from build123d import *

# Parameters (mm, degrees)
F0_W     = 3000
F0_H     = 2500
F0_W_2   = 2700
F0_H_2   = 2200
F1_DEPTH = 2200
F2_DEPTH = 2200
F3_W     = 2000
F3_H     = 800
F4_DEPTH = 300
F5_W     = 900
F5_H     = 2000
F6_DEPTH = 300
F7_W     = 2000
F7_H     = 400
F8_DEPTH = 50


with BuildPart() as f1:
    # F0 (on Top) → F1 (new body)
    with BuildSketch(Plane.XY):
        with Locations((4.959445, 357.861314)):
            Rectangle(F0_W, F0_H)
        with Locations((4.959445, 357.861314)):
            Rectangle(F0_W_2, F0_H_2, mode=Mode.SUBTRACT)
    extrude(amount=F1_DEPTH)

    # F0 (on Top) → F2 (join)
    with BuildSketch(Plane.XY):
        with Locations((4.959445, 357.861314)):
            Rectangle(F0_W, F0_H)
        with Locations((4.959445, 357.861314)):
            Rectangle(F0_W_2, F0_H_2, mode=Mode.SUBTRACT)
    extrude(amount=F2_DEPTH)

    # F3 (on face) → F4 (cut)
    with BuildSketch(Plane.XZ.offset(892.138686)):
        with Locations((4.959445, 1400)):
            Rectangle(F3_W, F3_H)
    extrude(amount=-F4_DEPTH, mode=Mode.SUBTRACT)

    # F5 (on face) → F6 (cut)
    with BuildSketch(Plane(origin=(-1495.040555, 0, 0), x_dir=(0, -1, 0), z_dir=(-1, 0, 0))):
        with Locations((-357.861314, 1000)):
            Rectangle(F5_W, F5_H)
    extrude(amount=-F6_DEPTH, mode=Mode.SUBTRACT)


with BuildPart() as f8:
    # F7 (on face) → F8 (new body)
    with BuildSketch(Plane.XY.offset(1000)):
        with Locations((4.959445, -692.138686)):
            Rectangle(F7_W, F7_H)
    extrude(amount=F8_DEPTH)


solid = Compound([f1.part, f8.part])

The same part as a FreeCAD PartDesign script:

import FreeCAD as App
import Part
import Sketcher


def add_polygon(sketch, points):
    """Adds a closed chain of lines whose ends are joined by coincident constraints."""
    first, n = sketch.GeometryCount, len(points)
    for a, b in zip(points, points[1:] + points[:1]):
        sketch.addGeometry(Part.LineSegment(App.Vector(*a, 0), App.Vector(*b, 0)), False)
    for i in range(n):
        sketch.addConstraint(Sketcher.Constraint("Coincident", first + i, 2, first + (i + 1) % n, 1))

doc = App.newDocument("Part")
body = doc.addObject("PartDesign::Body", "Body")

# Sketch on XY plane
sketch1 = doc.addObject("Sketcher::SketchObject", "Sketch")
body.addObject(sketch1)
sketch1.AttachmentSupport = (doc.XY_Plane, [""])
sketch1.MapMode = "FlatFace"
add_polygon(sketch1, [(-1495, 1608), (-1495, -892), (1505, -892), (1505, 1608)])  # lines 0-3
add_polygon(sketch1, [(1355, -742), (-1345, -742), (-1345, 1458), (1355, 1458)])  # lines 4-7
sketch1.addConstraint([
    Sketcher.Constraint("Vertical", 0),
    Sketcher.Constraint("Horizontal", 1),
    Sketcher.Constraint("Vertical", 2),
    Sketcher.Constraint("Horizontal", 3),
    Sketcher.Constraint("Horizontal", 4),
    Sketcher.Constraint("Vertical", 5),
    Sketcher.Constraint("Horizontal", 6),
    Sketcher.Constraint("Vertical", 7),
    Sketcher.Constraint("DistanceX", 1, 1, 1, 2, 3000.0),
    Sketcher.Constraint("DistanceX", 4, 2, 4, 1, 2700.0),
    Sketcher.Constraint("DistanceY", 0, 2, 0, 1, 2500.0),
    Sketcher.Constraint("DistanceY", 5, 1, 5, 2, 2200.0),
    Sketcher.Constraint("DistanceX", 0, 2, 4, 2, 150.0),
    Sketcher.Constraint("DistanceY", 0, 2, 4, 2, 150.0),
    Sketcher.Constraint("DistanceX", 0, 2, -1, 1, 1495.040555),
    Sketcher.Constraint("DistanceY", 0, 2, -1, 1, 892.138686),
])
pad1 = doc.addObject("PartDesign::Pad", "Pad")
body.addObject(pad1)
pad1.Profile = sketch1
pad1.Length = 2200

# Sketch on XY plane
sketch2 = doc.addObject("Sketcher::SketchObject", "Sketch001")
body.addObject(sketch2)
sketch2.AttachmentSupport = (doc.XY_Plane, [""])
sketch2.MapMode = "FlatFace"
add_polygon(sketch2, [(-1495, 1608), (-1495, -892), (1505, -892), (1505, 1608)])  # lines 0-3
add_polygon(sketch2, [(1355, -742), (-1345, -742), (-1345, 1458), (1355, 1458)])  # lines 4-7
sketch2.addConstraint([
    Sketcher.Constraint("Vertical", 0),
    Sketcher.Constraint("Horizontal", 1),
    Sketcher.Constraint("Vertical", 2),
    Sketcher.Constraint("Horizontal", 3),
    Sketcher.Constraint("Horizontal", 4),
    Sketcher.Constraint("Vertical", 5),
    Sketcher.Constraint("Horizontal", 6),
    Sketcher.Constraint("Vertical", 7),
    Sketcher.Constraint("DistanceX", 1, 1, 1, 2, 3000.0),
    Sketcher.Constraint("DistanceX", 4, 2, 4, 1, 2700.0),
    Sketcher.Constraint("DistanceY", 0, 2, 0, 1, 2500.0),
    Sketcher.Constraint("DistanceY", 5, 1, 5, 2, 2200.0),
    Sketcher.Constraint("DistanceX", 0, 2, 4, 2, 150.0),
    Sketcher.Constraint("DistanceY", 0, 2, 4, 2, 150.0),
    Sketcher.Constraint("DistanceX", 0, 2, -1, 1, 1495.040555),
    Sketcher.Constraint("DistanceY", 0, 2, -1, 1, 892.138686),
])
pad2 = doc.addObject("PartDesign::Pad", "Pad001")
body.addObject(pad2)
pad2.Profile = sketch2
pad2.Length = 2200

# Sketch on XZ plane
sketch3 = doc.addObject("Sketcher::SketchObject", "Sketch002")
body.addObject(sketch3)
sketch3.AttachmentSupport = (doc.XZ_Plane, [""])
sketch3.MapMode = "FlatFace"
sketch3.AttachmentOffset = App.Placement(App.Vector(0, 0, 892.138686), App.Rotation())
add_polygon(sketch3, [(-995, 1800), (-995, 1000), (1005, 1000), (1005, 1800)])  # lines 0-3
sketch3.addConstraint([
    Sketcher.Constraint("Vertical", 0),
    Sketcher.Constraint("Horizontal", 1),
    Sketcher.Constraint("Vertical", 2),
    Sketcher.Constraint("Horizontal", 3),
    Sketcher.Constraint("DistanceX", 1, 1, 1, 2, 2000.0),
    Sketcher.Constraint("DistanceY", 0, 2, 0, 1, 800.0),
    Sketcher.Constraint("DistanceY", -1, 1, 0, 2, 1000.0),
    Sketcher.Constraint("DistanceX", 0, 2, -1, 1, 995.040555),
])
pocket1 = doc.addObject("PartDesign::Pocket", "Pocket")
body.addObject(pocket1)
pocket1.Profile = sketch3
pocket1.Length = 300

# Sketch on YZ plane
sketch4 = doc.addObject("Sketcher::SketchObject", "Sketch003")
body.addObject(sketch4)
sketch4.AttachmentSupport = (doc.YZ_Plane, [""])
sketch4.MapMode = "FlatFace"
sketch4.AttachmentOffset = App.Placement(App.Vector(0, 0, -1495.040555), App.Rotation())
add_polygon(sketch4, [(808, 2000), (808, 0), (-92, 0), (-92, 2000)])  # lines 0-3
sketch4.addConstraint([
    Sketcher.Constraint("Vertical", 0),
    Sketcher.Constraint("Horizontal", 1),
    Sketcher.Constraint("Vertical", 2),
    Sketcher.Constraint("Horizontal", 3),
    Sketcher.Constraint("PointOnObject", 0, 2, -1),
    Sketcher.Constraint("DistanceX", 1, 2, 1, 1, 900.0),
    Sketcher.Constraint("DistanceY", 0, 2, 0, 1, 2000.0),
    Sketcher.Constraint("DistanceX", -1, 1, 0, 2, 807.861314),
])
pocket2 = doc.addObject("PartDesign::Pocket", "Pocket001")
body.addObject(pocket2)
pocket2.Profile = sketch4
pocket2.Length = 300
pocket2.Reversed = True
body2 = doc.addObject("PartDesign::Body", "Body001")

# Sketch on XY plane
sketch5 = doc.addObject("Sketcher::SketchObject", "Sketch004")
body2.addObject(sketch5)
sketch5.AttachmentSupport = (doc.getObject("XY_Plane001"), [""])
sketch5.MapMode = "FlatFace"
sketch5.AttachmentOffset = App.Placement(App.Vector(0, 0, 1000), App.Rotation())
add_polygon(sketch5, [(-995, -492), (-995, -892), (1005, -892), (1005, -492)])  # lines 0-3
sketch5.addConstraint([
    Sketcher.Constraint("Vertical", 0),
    Sketcher.Constraint("Horizontal", 1),
    Sketcher.Constraint("Vertical", 2),
    Sketcher.Constraint("Horizontal", 3),
    Sketcher.Constraint("DistanceX", 1, 1, 1, 2, 2000.0),
    Sketcher.Constraint("DistanceY", 0, 2, 0, 1, 400.0),
    Sketcher.Constraint("DistanceX", 0, 2, -1, 1, 995.040555),
    Sketcher.Constraint("DistanceY", 0, 2, -1, 1, 892.138686),
])
pad3 = doc.addObject("PartDesign::Pad", "Pad002")
body2.addObject(pad3)
pad3.Profile = sketch5
pad3.Length = 50

doc.recompute()
